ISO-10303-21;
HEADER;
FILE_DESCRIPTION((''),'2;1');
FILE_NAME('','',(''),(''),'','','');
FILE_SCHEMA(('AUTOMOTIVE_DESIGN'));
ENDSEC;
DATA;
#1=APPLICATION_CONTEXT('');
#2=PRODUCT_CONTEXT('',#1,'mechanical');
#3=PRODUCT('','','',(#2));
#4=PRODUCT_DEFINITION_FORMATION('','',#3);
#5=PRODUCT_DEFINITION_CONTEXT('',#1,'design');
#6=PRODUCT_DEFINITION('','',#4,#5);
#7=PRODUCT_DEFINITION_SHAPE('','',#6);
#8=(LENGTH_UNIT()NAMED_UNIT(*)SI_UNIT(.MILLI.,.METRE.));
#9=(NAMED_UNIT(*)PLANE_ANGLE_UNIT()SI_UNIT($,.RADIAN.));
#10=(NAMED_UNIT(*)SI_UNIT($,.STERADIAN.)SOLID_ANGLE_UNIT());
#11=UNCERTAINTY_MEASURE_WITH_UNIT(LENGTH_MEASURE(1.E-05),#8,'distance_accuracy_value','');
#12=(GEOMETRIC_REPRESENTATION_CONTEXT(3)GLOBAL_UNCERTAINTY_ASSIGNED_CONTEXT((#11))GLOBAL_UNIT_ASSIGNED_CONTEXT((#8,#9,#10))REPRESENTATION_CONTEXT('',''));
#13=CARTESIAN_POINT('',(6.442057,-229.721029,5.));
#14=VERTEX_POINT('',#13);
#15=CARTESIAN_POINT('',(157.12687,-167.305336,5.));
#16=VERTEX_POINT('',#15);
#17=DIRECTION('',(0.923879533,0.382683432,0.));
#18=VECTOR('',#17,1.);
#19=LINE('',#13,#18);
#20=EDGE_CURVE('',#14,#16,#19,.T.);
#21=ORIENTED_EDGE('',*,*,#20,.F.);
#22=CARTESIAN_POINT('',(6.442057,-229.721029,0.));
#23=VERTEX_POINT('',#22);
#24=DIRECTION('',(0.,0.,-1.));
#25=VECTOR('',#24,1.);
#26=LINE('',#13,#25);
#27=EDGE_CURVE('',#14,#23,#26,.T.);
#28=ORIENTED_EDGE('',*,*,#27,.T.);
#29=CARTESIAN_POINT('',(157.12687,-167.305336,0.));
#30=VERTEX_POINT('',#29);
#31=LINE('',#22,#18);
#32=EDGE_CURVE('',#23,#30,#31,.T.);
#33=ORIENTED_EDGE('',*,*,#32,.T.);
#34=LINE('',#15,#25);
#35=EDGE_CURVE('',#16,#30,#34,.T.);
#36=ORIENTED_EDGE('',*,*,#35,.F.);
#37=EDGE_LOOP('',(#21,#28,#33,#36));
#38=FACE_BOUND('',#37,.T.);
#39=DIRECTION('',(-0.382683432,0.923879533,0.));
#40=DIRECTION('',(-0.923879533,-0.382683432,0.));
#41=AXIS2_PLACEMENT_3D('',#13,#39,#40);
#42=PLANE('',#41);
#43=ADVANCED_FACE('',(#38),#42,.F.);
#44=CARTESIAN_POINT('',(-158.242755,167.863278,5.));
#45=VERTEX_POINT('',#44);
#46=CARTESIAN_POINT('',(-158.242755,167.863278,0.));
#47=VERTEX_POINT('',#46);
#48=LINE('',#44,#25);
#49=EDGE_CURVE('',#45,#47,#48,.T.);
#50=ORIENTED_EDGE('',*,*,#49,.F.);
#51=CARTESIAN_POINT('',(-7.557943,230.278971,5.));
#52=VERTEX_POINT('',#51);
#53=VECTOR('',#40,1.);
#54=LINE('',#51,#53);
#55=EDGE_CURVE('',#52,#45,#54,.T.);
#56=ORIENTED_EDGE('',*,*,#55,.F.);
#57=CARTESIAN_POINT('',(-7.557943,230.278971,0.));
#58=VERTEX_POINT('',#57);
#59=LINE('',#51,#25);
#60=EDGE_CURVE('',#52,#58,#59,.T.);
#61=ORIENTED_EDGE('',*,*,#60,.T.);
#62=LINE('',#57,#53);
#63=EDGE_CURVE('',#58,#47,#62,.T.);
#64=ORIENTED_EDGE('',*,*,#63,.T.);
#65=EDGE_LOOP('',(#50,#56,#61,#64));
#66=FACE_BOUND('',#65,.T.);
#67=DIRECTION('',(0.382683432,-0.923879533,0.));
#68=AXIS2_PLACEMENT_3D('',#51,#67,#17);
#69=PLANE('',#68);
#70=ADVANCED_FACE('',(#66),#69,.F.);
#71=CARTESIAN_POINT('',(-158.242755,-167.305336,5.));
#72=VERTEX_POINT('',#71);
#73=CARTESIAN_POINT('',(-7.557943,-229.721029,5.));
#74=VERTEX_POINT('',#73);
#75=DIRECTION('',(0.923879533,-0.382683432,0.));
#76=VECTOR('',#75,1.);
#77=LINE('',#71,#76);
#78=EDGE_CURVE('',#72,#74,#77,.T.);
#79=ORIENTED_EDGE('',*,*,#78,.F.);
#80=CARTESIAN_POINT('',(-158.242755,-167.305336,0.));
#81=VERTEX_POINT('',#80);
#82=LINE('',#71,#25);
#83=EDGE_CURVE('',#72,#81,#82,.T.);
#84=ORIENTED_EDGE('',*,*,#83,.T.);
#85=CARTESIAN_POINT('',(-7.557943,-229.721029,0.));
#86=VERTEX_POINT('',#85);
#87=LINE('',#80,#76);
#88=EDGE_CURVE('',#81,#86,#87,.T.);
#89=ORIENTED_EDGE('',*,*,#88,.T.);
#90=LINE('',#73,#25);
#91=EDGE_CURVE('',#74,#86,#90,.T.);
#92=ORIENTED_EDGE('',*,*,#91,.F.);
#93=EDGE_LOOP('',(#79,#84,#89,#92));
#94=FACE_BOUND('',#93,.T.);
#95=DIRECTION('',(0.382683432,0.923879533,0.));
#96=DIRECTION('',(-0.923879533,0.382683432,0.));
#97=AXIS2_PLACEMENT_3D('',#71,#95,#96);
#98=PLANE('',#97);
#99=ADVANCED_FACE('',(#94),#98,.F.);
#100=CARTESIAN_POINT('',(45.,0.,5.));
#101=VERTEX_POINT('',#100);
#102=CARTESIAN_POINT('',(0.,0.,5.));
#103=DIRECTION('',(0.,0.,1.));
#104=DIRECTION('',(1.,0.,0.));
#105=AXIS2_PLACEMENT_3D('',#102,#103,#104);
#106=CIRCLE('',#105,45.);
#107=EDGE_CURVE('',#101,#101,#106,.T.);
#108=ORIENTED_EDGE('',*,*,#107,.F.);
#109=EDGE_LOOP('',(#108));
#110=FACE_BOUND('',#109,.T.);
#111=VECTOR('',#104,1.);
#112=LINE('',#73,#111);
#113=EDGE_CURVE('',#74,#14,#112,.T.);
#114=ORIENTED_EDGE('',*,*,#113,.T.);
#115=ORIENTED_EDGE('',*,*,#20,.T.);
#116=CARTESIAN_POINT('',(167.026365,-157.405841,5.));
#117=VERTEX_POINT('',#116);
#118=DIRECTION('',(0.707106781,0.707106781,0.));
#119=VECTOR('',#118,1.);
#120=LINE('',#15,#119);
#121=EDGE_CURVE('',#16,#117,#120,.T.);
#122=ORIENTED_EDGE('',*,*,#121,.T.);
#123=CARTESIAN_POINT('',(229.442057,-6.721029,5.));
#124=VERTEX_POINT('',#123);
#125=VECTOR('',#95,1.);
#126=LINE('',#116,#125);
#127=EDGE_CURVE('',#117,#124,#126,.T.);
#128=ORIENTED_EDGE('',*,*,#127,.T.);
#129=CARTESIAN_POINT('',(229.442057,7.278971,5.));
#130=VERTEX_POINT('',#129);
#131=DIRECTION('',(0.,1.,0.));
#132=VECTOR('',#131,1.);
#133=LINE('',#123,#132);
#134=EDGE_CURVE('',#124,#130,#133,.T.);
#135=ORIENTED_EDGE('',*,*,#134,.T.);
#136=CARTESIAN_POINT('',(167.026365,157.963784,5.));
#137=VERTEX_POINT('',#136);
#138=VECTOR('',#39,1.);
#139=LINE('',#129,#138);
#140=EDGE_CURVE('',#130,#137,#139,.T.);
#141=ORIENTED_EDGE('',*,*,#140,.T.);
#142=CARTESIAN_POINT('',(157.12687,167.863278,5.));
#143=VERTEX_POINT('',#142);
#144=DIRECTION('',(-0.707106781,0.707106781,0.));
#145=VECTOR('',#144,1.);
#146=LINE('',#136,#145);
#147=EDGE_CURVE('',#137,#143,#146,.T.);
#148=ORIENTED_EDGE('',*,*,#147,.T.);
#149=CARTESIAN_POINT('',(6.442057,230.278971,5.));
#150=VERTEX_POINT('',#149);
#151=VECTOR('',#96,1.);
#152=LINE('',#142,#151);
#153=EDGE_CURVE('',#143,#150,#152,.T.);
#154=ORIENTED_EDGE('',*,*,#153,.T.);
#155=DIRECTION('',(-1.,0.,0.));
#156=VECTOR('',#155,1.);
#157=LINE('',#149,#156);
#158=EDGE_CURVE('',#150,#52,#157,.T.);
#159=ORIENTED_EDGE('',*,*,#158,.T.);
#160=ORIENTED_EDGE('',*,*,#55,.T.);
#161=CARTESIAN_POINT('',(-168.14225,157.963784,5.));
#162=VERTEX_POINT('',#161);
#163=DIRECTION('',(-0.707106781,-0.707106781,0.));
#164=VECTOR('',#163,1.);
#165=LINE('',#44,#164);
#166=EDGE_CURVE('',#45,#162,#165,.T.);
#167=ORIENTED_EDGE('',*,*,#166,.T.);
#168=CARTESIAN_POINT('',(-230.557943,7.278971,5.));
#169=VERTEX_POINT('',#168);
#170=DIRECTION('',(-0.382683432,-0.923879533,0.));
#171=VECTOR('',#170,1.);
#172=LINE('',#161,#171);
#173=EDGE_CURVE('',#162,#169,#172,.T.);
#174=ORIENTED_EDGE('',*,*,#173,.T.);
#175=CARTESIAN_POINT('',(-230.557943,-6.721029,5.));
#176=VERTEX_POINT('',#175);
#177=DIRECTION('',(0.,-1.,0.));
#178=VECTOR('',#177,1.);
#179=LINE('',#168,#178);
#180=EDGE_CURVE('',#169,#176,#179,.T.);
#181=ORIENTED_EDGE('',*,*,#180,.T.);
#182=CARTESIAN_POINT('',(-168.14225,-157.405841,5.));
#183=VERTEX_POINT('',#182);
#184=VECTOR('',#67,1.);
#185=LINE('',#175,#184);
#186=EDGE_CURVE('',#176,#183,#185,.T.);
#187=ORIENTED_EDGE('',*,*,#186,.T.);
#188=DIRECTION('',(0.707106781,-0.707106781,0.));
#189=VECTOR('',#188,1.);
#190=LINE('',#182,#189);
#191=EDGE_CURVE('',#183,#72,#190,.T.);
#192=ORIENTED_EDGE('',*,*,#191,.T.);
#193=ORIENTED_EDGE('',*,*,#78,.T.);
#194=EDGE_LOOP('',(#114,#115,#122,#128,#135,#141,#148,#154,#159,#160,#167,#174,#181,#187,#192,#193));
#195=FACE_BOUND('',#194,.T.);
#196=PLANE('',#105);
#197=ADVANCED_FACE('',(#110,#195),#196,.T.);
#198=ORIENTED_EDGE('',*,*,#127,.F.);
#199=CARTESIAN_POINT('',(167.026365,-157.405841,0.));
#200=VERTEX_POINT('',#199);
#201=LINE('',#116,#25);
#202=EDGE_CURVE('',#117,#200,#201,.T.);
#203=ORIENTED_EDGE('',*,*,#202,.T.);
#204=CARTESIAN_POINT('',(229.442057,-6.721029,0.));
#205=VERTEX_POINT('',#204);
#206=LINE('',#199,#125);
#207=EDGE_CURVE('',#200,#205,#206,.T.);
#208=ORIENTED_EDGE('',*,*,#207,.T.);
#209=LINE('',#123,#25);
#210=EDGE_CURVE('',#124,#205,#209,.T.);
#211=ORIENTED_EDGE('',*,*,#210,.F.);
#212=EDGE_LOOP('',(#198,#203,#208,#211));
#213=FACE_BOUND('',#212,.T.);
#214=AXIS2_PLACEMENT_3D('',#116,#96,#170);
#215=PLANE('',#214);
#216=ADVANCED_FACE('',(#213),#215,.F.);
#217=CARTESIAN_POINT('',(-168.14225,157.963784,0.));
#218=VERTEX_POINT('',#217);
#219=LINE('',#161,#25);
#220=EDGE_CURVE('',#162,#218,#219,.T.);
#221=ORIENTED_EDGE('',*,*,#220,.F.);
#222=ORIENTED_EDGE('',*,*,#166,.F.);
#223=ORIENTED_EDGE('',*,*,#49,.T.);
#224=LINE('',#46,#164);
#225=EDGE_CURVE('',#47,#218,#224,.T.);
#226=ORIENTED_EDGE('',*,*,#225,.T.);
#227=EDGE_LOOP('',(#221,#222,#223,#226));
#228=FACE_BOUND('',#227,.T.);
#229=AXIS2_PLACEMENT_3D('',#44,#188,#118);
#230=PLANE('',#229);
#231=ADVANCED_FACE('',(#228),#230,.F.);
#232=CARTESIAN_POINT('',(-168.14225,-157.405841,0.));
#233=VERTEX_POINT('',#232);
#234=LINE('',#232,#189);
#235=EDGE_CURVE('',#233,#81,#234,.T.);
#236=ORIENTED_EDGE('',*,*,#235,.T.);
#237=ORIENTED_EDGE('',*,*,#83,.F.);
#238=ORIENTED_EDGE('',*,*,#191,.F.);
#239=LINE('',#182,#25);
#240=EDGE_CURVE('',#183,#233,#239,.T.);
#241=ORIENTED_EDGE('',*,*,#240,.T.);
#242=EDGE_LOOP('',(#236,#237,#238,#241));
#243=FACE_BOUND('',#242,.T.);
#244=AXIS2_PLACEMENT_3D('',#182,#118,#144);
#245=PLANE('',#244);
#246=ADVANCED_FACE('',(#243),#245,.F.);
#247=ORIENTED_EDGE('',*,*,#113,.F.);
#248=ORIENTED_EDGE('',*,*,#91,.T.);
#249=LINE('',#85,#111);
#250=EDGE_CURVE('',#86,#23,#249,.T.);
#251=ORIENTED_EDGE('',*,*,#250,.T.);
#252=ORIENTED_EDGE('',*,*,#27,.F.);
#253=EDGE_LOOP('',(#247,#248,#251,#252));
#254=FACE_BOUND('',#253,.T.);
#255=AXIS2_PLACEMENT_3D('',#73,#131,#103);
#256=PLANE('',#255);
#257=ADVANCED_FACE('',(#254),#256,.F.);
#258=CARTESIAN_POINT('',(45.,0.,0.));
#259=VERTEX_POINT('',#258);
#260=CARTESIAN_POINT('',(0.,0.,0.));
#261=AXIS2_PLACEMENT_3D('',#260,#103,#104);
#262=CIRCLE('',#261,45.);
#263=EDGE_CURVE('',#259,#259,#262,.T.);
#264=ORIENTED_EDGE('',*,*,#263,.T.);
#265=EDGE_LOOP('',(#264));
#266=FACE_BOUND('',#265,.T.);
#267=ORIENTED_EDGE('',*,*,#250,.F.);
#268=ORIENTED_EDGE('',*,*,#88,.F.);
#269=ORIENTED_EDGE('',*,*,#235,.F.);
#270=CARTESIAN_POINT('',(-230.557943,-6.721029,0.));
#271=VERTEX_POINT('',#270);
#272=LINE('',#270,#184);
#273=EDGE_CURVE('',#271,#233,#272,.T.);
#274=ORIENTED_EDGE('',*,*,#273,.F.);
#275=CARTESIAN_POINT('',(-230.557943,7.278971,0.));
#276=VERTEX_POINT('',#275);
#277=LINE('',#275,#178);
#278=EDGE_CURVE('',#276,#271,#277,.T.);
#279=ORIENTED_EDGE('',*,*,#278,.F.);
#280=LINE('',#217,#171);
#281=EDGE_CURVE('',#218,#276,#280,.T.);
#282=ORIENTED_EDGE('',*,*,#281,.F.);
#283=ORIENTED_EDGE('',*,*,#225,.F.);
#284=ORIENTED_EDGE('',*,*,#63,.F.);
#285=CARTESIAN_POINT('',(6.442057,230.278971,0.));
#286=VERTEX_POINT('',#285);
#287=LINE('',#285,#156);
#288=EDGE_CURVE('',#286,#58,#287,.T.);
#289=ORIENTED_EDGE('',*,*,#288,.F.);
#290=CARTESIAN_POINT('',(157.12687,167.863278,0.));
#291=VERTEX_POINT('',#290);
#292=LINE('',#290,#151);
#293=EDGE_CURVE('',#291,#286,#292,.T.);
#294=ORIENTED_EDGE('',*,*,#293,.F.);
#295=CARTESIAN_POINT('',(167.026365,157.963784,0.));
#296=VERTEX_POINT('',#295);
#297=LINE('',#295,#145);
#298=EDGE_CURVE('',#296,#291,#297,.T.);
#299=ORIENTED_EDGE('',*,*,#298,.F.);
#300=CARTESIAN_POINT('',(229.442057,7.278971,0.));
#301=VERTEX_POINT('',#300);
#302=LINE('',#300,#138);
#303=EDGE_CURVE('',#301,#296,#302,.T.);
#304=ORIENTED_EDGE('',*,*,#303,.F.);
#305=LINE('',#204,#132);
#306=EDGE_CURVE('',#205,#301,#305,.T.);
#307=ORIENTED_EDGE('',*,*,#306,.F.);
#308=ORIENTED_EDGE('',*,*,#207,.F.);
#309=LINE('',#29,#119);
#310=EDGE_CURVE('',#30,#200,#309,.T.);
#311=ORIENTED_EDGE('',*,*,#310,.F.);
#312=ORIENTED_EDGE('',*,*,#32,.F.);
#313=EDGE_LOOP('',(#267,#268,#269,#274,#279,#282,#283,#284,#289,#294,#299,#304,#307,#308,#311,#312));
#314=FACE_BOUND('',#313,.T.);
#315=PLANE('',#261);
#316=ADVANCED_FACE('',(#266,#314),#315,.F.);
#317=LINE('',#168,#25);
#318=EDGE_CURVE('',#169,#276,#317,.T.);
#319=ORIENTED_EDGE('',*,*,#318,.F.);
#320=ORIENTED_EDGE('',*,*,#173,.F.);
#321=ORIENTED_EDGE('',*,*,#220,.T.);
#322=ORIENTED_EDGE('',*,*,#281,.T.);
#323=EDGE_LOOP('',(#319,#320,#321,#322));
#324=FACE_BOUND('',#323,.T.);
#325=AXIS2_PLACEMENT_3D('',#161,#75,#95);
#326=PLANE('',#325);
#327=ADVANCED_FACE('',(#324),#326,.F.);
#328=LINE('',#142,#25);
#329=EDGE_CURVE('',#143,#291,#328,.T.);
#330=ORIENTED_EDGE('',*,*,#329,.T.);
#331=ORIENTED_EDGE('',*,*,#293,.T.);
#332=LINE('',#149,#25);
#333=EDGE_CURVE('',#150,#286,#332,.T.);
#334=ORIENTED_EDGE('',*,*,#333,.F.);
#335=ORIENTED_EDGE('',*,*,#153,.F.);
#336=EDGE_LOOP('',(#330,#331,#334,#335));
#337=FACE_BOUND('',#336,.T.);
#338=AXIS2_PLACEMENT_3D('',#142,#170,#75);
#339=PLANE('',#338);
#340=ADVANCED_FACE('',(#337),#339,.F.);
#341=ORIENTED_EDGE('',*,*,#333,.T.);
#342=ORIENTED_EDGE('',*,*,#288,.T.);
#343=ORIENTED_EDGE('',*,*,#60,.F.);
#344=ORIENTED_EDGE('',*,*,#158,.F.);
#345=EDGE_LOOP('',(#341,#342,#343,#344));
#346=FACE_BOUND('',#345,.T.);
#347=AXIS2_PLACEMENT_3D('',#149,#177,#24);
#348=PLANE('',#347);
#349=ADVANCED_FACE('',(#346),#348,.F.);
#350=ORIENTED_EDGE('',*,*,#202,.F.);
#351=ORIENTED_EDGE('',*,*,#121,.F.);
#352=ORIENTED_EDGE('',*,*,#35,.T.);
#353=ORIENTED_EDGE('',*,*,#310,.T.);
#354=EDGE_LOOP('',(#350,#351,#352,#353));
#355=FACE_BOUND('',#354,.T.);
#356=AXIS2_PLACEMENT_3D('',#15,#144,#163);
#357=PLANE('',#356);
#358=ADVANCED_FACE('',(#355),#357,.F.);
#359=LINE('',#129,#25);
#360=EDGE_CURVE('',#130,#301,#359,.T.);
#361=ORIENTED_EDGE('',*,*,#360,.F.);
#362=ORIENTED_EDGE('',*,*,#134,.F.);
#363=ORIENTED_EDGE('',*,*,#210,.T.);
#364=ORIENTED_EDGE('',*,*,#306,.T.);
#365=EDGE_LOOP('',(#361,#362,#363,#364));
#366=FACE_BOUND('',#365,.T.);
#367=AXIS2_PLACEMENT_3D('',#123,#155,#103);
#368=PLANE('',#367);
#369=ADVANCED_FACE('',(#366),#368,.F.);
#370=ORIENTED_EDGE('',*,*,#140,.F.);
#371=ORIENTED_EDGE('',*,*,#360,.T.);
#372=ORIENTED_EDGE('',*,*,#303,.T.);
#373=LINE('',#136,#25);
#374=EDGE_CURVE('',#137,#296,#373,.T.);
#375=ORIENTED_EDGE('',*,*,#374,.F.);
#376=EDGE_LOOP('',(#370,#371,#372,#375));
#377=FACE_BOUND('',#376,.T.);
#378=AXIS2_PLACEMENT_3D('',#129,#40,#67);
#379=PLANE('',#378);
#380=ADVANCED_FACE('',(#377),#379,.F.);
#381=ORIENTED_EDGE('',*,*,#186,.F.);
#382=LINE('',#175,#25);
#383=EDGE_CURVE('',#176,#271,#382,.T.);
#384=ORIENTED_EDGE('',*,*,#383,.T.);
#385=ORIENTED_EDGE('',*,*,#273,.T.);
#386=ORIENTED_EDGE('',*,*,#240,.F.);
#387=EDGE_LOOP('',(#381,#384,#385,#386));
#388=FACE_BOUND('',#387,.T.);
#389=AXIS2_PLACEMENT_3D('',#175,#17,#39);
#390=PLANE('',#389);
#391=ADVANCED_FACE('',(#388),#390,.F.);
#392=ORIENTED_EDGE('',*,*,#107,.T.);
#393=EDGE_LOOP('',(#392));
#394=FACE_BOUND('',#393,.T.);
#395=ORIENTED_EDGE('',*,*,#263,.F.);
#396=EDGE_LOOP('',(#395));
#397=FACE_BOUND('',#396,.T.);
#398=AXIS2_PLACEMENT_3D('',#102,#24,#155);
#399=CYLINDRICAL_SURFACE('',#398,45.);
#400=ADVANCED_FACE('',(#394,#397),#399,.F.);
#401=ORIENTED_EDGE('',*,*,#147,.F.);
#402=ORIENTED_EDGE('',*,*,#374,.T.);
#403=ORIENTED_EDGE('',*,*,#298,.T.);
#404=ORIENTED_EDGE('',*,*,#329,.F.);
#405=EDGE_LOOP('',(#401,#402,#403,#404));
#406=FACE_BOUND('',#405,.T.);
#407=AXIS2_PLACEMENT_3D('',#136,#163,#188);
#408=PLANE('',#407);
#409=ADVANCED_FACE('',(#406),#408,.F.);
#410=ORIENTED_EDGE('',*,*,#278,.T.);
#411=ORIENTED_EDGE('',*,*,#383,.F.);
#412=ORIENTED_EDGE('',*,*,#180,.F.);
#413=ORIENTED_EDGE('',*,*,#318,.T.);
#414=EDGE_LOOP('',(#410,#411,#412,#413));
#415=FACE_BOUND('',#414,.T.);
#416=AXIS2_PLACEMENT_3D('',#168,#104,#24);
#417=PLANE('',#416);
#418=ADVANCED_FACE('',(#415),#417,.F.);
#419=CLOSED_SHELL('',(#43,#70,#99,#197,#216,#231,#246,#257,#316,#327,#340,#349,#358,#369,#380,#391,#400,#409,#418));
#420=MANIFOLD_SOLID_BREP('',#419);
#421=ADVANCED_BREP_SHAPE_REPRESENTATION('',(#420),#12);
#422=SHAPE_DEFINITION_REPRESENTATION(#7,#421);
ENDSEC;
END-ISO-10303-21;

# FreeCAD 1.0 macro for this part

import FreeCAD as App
import Part
import Sketcher

V = App.Vector
Q = App.Units.Quantity

doc = App.newDocument("Part")
body = doc.addObject("PartDesign::Body", "Body")

# Sketch on XY plane
sketch1 = doc.addObject("Sketcher::SketchObject", "Sketch")
body.addObject(sketch1)
sketch1.AttachmentSupport = (doc.XY_Plane, [""])
sketch1.MapMode = "FlatFace"
sketch1.addGeometry([
    Part.LineSegment(V(-231, -7, 0), V(-168, -157, 0)),  # 0
    Part.LineSegment(V(-168, -157, 0), V(-158, -167, 0)),  # 1
    Part.LineSegment(V(-158, -167, 0), V(-8, -230, 0)),  # 2
    Part.LineSegment(V(-8, -230, 0), V(6, -230, 0)),  # 3
    Part.LineSegment(V(6, -230, 0), V(157, -167, 0)),  # 4
    Part.LineSegment(V(157, -167, 0), V(167, -157, 0)),  # 5
    Part.LineSegment(V(167, -157, 0), V(229, -7, 0)),  # 6
    Part.LineSegment(V(229, -7, 0), V(229, 7, 0)),  # 7
    Part.LineSegment(V(229, 7, 0), V(167, 158, 0)),  # 8
    Part.LineSegment(V(167, 158, 0), V(157, 168, 0)),  # 9
    Part.LineSegment(V(157, 168, 0), V(6, 230, 0)),  # 10
    Part.LineSegment(V(6, 230, 0), V(-8, 230, 0)),  # 11
    Part.LineSegment(V(-8, 230, 0), V(-158, 168, 0)),  # 12
    Part.LineSegment(V(-158, 168, 0), V(-168, 158, 0)),  # 13
    Part.LineSegment(V(-168, 158, 0), V(-231, 7, 0)),  # 14
    Part.LineSegment(V(-231, 7, 0), V(-231, -7, 0)),  # 15
    Part.Circle(V(0, 0, 0), V(0, 0, 1), 45),  # 16
], False)
sketch1.addConstraint([
    Sketcher.Constraint("Coincident", 0, 2, 1, 1),
    Sketcher.Constraint("Coincident", 1, 2, 2, 1),
    Sketcher.Constraint("Coincident", 2, 2, 3, 1),
    Sketcher.Constraint("Coincident", 3, 2, 4, 1),
    Sketcher.Constraint("Coincident", 4, 2, 5, 1),
    Sketcher.Constraint("Coincident", 5, 2, 6, 1),
    Sketcher.Constraint("Coincident", 6, 2, 7, 1),
    Sketcher.Constraint("Coincident", 7, 2, 8, 1),
    Sketcher.Constraint("Coincident", 8, 2, 9, 1),
    Sketcher.Constraint("Coincident", 9, 2, 10, 1),
    Sketcher.Constraint("Coincident", 10, 2, 11, 1),
    Sketcher.Constraint("Coincident", 11, 2, 12, 1),
    Sketcher.Constraint("Coincident", 12, 2, 13, 1),
    Sketcher.Constraint("Coincident", 13, 2, 14, 1),
    Sketcher.Constraint("Coincident", 14, 2, 15, 1),
    Sketcher.Constraint("Coincident", 15, 2, 0, 1),
    Sketcher.Constraint("Horizontal", 3),
    Sketcher.Constraint("Vertical", 7),
    Sketcher.Constraint("Horizontal", 11),
    Sketcher.Constraint("Vertical", 15),
    Sketcher.Constraint("Coincident", 16, 3, -1, 1),
    Sketcher.Constraint("Perpendicular", 0, 4),
    Sketcher.Constraint("Perpendicular", 1, 5),
    Sketcher.Constraint("Perpendicular", 2, 6),
    Sketcher.Constraint("Perpendicular", 4, 8),
    Sketcher.Constraint("Perpendicular", 5, 9),
    Sketcher.Constraint("Perpendicular", 6, 10),
    Sketcher.Constraint("Perpendicular", 8, 12),
    Sketcher.Constraint("Perpendicular", 9, 13),
    Sketcher.Constraint("Perpendicular", 10, 14),
    Sketcher.Constraint("Horizontal", 1, 2, 4, 2),
    Sketcher.Constraint("Horizontal", 0, 2, 5, 2),
    Sketcher.Constraint("Horizontal", 9, 2, 12, 2),
    Sketcher.Constraint("Horizontal", 8, 2, 13, 2),
    Sketcher.Constraint("Horizontal", 7, 2, 14, 2),
    Sketcher.Constraint("Horizontal", 6, 2, 15, 2),
    Sketcher.Constraint("Vertical", 5, 2, 8, 2),
    Sketcher.Constraint("Vertical", 4, 2, 9, 2),
    Sketcher.Constraint("Vertical", 3, 2, 10, 2),
    Sketcher.Constraint("Vertical", 2, 2, 11, 2),
    Sketcher.Constraint("Vertical", 1, 2, 12, 2),
    Sketcher.Constraint("Equal", 11, 7),
    Sketcher.Constraint("Equal", 0, 2),
    Sketcher.Constraint("Diameter", 16, Q("90 mm")),
    Sketcher.Constraint("DistanceX", 3, 1, 3, 2, Q("14 mm")),
    Sketcher.Constraint("Distance", 1, Q("14 mm")),
    Sketcher.Constraint("Angle", 0, Q("-67.5 deg")),
    Sketcher.Constraint("DistanceX", 3, 2, 6, 2, Q("223 mm")),
    Sketcher.Constraint("DistanceX", 0, 2, -1, 1, Q("168.14225 mm")),
    Sketcher.Constraint("DistanceY", 0, 2, -1, 1, Q("157.405841 mm")),
])
pad1 = doc.addObject("PartDesign::Pad", "Pad")
body.addObject(pad1)
pad1.Profile = sketch1
pad1.Length = 5

doc.recompute()
